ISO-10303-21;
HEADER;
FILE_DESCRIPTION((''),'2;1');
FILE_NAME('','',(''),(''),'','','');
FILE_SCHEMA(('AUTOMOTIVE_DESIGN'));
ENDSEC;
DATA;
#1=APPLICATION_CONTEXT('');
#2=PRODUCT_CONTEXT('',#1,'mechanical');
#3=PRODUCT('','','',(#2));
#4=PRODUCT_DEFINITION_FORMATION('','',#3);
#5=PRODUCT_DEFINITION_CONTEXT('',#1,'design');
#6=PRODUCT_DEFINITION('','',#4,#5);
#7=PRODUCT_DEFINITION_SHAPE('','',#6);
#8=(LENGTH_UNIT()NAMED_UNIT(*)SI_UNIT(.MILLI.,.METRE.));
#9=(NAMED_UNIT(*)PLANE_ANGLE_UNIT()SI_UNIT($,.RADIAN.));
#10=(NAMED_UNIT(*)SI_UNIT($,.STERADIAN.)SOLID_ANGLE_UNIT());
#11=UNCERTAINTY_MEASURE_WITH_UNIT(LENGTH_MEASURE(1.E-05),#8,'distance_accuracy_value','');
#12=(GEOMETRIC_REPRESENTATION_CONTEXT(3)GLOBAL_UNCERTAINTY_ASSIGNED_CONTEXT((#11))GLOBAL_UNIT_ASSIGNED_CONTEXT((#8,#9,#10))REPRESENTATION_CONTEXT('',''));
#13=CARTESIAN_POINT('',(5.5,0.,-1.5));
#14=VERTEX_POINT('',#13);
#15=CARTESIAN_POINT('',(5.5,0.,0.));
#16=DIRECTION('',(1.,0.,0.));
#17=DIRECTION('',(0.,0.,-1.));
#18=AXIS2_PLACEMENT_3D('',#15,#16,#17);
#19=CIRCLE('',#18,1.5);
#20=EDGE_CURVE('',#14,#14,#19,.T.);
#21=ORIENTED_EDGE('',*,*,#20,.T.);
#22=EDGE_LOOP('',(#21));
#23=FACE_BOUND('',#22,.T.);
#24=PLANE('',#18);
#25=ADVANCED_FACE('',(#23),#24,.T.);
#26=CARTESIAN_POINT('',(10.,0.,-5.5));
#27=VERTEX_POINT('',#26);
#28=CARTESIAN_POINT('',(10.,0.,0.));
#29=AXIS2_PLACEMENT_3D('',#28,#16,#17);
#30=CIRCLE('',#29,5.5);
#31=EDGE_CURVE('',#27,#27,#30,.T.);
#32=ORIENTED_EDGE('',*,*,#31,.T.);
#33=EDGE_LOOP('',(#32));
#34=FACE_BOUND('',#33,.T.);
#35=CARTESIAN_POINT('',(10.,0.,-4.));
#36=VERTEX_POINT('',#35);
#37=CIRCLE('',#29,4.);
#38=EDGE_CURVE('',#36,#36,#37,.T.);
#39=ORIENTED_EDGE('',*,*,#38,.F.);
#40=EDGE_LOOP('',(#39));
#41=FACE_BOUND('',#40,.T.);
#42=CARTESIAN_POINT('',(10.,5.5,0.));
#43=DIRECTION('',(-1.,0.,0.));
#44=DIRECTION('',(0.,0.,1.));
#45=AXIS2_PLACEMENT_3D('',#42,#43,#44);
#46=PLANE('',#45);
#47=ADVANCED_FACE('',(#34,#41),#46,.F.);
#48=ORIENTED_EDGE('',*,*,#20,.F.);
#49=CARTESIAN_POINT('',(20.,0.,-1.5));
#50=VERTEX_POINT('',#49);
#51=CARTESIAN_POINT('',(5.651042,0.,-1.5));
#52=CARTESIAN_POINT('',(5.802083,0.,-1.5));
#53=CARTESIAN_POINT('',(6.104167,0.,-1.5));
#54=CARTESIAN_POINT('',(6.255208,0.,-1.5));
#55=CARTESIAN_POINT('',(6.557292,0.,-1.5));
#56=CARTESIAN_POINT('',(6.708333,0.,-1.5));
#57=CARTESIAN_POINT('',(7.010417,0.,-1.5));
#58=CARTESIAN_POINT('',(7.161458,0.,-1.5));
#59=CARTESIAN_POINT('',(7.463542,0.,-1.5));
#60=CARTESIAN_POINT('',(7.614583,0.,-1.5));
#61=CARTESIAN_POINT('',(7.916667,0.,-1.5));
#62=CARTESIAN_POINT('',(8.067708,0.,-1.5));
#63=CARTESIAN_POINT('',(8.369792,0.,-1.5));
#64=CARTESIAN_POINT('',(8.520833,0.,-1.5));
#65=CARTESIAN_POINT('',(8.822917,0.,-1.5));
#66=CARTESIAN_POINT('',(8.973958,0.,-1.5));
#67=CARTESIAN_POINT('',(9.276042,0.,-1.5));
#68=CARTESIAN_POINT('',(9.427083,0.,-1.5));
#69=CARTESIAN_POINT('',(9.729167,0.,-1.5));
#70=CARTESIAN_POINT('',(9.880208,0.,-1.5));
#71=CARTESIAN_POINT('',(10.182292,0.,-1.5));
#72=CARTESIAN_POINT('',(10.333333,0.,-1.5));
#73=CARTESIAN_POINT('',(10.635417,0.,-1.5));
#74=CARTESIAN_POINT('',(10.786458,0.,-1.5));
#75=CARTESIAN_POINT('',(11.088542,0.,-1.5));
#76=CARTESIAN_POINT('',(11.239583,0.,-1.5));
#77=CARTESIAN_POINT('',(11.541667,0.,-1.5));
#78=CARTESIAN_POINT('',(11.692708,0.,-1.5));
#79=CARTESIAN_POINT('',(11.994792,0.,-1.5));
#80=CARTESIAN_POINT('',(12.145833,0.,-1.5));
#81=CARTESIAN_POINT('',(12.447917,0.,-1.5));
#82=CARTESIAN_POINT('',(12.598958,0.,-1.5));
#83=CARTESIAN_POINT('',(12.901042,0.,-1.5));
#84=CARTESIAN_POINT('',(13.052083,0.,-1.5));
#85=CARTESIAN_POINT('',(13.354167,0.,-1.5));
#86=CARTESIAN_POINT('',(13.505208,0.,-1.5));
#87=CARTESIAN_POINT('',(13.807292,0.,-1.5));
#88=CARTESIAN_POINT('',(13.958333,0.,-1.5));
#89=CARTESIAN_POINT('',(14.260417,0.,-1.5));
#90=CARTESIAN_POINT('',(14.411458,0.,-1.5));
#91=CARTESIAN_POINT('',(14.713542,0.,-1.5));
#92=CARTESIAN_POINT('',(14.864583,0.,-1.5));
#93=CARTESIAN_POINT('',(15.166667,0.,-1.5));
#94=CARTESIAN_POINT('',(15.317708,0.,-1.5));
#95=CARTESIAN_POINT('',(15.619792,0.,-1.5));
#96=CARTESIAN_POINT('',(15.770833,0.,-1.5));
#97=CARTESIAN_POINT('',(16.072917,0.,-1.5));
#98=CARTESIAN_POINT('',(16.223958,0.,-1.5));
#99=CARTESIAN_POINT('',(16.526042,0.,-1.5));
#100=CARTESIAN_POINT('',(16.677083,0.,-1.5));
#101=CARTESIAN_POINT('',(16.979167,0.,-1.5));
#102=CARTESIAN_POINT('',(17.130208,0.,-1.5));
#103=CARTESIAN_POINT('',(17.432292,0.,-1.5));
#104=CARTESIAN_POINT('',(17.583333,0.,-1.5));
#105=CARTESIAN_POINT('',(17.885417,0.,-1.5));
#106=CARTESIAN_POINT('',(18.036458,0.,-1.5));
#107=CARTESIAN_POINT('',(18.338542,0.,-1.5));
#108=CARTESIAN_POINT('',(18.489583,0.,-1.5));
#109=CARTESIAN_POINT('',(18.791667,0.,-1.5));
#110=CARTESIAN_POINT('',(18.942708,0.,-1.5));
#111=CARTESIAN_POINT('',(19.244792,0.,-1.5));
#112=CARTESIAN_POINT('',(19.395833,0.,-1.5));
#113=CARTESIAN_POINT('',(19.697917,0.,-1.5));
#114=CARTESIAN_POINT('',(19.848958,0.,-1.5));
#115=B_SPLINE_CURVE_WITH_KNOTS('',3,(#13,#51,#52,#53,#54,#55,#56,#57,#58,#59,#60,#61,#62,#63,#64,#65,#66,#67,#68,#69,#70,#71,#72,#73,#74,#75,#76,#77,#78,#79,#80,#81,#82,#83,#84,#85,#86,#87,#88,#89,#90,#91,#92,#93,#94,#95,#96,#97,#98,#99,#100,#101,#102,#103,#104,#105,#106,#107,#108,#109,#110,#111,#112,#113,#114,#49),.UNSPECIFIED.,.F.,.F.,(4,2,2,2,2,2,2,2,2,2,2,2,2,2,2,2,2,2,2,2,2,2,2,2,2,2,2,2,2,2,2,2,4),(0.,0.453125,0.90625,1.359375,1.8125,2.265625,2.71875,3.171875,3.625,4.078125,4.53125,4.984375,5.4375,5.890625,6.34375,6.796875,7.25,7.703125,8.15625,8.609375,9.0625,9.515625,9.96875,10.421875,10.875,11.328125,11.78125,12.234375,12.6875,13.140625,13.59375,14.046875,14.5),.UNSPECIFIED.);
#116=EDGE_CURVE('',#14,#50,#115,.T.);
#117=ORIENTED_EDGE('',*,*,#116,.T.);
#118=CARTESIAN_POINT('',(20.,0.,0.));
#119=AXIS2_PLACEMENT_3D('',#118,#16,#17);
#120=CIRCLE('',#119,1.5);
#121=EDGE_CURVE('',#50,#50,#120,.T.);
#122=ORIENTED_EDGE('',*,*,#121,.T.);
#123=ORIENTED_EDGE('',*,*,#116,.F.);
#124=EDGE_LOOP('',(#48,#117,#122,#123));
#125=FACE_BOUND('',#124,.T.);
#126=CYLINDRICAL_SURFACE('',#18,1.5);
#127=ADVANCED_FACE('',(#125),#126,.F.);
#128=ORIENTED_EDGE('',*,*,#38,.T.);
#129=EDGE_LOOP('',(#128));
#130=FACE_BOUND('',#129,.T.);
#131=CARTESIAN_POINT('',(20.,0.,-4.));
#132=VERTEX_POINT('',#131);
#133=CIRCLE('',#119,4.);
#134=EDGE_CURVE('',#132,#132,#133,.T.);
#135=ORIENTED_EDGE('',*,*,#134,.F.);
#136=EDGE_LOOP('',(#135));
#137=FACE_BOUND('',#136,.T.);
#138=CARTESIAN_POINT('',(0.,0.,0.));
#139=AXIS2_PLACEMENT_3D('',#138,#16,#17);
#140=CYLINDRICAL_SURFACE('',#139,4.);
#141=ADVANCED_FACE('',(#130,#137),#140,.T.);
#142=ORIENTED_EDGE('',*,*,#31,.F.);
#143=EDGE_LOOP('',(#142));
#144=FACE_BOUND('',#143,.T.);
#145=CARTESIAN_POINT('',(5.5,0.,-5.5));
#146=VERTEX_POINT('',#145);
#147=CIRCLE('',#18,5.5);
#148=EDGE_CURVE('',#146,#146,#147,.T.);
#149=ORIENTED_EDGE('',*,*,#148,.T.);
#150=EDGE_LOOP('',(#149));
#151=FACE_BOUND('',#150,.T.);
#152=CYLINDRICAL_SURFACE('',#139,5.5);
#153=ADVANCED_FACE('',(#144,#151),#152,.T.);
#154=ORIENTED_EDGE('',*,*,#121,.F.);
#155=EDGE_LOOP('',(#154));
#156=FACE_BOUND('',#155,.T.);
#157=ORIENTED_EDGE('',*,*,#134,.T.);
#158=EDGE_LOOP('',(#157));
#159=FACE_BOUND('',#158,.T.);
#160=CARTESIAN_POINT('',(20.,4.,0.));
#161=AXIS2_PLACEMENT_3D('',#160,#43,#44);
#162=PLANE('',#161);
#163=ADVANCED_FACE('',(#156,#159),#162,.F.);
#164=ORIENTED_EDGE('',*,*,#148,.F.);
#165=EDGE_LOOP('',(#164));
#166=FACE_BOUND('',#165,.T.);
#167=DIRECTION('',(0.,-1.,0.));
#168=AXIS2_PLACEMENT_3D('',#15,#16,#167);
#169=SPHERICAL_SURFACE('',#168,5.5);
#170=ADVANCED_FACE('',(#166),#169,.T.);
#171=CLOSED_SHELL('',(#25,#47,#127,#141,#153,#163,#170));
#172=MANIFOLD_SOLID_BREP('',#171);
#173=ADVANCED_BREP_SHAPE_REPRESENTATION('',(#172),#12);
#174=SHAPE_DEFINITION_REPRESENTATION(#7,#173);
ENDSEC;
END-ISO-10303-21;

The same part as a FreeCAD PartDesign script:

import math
import FreeCAD as App
import Part
import Sketcher
from FreeCAD import Vector

doc = App.newDocument("Part")
params = doc.addObject("Spreadsheet::Sheet", "Params")
for row, (alias, value) in enumerate([
    ("sketch1_radius", "5.5 mm"),
    ("sketch1_width", "20 mm"),
    ("sketch1_width2", "10 mm"),
    ("sketch1_height", "4 mm"),
    ("revolution_angle", "360 deg"),
    ("sketch2_diameter", "3 mm"),
    ("pocket1_length", "14.5 mm"),
], start=1):
    params.set(f"A{row}", alias)
    params.set(f"B{row}", "=" + value)
    params.setAlias(f"B{row}", alias)

body = doc.addObject("PartDesign::Body", "Body")

# Sketch on XY plane
sketch1 = body.newObject("Sketcher::SketchObject", "Sketch")
sketch1.AttachmentSupport = (doc.getObject("XY_Plane"), [""])
sketch1.MapMode = "FlatFace"
sketch1.addGeometry([
    Part.LineSegment(Vector(10, 5.5, 0), Vector(5.5, 5.5, 0)),  # 0
    Part.ArcOfCircle(Part.Circle(Vector(5.5, 0, 0), Vector(0, 0, 1), 5.5), math.radians(90), math.radians(180)),  # 1
    Part.LineSegment(Vector(0, 0, 0), Vector(20, 0, 0)),  # 2
    Part.LineSegment(Vector(20, 0, 0), Vector(20, 4, 0)),  # 3
    Part.LineSegment(Vector(20, 4, 0), Vector(10, 4, 0)),  # 4
    Part.LineSegment(Vector(10, 4, 0), Vector(10, 5.5, 0)),  # 5
], False)
sketch1.addConstraint([
    Sketcher.Constraint("Tangent", 0, 2, 1, 1),
    Sketcher.Constraint("Coincident", 1, 2, 2, 1),
    Sketcher.Constraint("Coincident", 2, 2, 3, 1),
    Sketcher.Constraint("Coincident", 3, 2, 4, 1),
    Sketcher.Constraint("Coincident", 4, 2, 5, 1),
    Sketcher.Constraint("Coincident", 5, 2, 0, 1),
    Sketcher.Constraint("Horizontal", 0),
    Sketcher.Constraint("Horizontal", 2),
    Sketcher.Constraint("Vertical", 3),
    Sketcher.Constraint("Horizontal", 4),
    Sketcher.Constraint("Vertical", 5),
    Sketcher.Constraint("Coincident", 1, 2, -1, 1),
    Sketcher.Constraint("PointOnObject", 1, 3, -1),
    Sketcher.Constraint("Radius", 1, 5.5),
    Sketcher.Constraint("DistanceX", 2, 1, 2, 2, 20.0),
    Sketcher.Constraint("DistanceX", 4, 2, 4, 1, 10.0),
    Sketcher.Constraint("DistanceY", 3, 1, 3, 2, 4.0),
])
sketch1.setExpression("Constraints[13]", "Params.sketch1_radius")
sketch1.setExpression("Constraints[14]", "Params.sketch1_width")
sketch1.setExpression("Constraints[15]", "Params.sketch1_width2")
sketch1.setExpression("Constraints[16]", "Params.sketch1_height")
revolution = body.newObject("PartDesign::Revolution", "Revolution")
revolution.Profile = sketch1
revolution.ReferenceAxis = (sketch1, ["H_Axis"])
revolution.setExpression("Angle", "Params.revolution_angle")

# Sketch on YZ plane
sketch2 = body.newObject("Sketcher::SketchObject", "Sketch001")
sketch2.AttachmentSupport = (doc.getObject("YZ_Plane"), [""])
sketch2.MapMode = "FlatFace"
sketch2.AttachmentOffset = App.Placement(Vector(0, 0, 20), App.Rotation())
sketch2.addGeometry(Part.Circle(Vector(0, 0, 0), Vector(0, 0, 1), 1.5), False)
sketch2.addConstraint([
    Sketcher.Constraint("Coincident", 0, 3, -1, 1),
    Sketcher.Constraint("Diameter", 0, 3.0),
])
sketch2.setExpression("Constraints[1]", "Params.sketch2_diameter")
pocket1 = body.newObject("PartDesign::Pocket", "Pocket")
pocket1.Profile = sketch2
pocket1.setExpression("Length", "Params.pocket1_length")

doc.recompute()
